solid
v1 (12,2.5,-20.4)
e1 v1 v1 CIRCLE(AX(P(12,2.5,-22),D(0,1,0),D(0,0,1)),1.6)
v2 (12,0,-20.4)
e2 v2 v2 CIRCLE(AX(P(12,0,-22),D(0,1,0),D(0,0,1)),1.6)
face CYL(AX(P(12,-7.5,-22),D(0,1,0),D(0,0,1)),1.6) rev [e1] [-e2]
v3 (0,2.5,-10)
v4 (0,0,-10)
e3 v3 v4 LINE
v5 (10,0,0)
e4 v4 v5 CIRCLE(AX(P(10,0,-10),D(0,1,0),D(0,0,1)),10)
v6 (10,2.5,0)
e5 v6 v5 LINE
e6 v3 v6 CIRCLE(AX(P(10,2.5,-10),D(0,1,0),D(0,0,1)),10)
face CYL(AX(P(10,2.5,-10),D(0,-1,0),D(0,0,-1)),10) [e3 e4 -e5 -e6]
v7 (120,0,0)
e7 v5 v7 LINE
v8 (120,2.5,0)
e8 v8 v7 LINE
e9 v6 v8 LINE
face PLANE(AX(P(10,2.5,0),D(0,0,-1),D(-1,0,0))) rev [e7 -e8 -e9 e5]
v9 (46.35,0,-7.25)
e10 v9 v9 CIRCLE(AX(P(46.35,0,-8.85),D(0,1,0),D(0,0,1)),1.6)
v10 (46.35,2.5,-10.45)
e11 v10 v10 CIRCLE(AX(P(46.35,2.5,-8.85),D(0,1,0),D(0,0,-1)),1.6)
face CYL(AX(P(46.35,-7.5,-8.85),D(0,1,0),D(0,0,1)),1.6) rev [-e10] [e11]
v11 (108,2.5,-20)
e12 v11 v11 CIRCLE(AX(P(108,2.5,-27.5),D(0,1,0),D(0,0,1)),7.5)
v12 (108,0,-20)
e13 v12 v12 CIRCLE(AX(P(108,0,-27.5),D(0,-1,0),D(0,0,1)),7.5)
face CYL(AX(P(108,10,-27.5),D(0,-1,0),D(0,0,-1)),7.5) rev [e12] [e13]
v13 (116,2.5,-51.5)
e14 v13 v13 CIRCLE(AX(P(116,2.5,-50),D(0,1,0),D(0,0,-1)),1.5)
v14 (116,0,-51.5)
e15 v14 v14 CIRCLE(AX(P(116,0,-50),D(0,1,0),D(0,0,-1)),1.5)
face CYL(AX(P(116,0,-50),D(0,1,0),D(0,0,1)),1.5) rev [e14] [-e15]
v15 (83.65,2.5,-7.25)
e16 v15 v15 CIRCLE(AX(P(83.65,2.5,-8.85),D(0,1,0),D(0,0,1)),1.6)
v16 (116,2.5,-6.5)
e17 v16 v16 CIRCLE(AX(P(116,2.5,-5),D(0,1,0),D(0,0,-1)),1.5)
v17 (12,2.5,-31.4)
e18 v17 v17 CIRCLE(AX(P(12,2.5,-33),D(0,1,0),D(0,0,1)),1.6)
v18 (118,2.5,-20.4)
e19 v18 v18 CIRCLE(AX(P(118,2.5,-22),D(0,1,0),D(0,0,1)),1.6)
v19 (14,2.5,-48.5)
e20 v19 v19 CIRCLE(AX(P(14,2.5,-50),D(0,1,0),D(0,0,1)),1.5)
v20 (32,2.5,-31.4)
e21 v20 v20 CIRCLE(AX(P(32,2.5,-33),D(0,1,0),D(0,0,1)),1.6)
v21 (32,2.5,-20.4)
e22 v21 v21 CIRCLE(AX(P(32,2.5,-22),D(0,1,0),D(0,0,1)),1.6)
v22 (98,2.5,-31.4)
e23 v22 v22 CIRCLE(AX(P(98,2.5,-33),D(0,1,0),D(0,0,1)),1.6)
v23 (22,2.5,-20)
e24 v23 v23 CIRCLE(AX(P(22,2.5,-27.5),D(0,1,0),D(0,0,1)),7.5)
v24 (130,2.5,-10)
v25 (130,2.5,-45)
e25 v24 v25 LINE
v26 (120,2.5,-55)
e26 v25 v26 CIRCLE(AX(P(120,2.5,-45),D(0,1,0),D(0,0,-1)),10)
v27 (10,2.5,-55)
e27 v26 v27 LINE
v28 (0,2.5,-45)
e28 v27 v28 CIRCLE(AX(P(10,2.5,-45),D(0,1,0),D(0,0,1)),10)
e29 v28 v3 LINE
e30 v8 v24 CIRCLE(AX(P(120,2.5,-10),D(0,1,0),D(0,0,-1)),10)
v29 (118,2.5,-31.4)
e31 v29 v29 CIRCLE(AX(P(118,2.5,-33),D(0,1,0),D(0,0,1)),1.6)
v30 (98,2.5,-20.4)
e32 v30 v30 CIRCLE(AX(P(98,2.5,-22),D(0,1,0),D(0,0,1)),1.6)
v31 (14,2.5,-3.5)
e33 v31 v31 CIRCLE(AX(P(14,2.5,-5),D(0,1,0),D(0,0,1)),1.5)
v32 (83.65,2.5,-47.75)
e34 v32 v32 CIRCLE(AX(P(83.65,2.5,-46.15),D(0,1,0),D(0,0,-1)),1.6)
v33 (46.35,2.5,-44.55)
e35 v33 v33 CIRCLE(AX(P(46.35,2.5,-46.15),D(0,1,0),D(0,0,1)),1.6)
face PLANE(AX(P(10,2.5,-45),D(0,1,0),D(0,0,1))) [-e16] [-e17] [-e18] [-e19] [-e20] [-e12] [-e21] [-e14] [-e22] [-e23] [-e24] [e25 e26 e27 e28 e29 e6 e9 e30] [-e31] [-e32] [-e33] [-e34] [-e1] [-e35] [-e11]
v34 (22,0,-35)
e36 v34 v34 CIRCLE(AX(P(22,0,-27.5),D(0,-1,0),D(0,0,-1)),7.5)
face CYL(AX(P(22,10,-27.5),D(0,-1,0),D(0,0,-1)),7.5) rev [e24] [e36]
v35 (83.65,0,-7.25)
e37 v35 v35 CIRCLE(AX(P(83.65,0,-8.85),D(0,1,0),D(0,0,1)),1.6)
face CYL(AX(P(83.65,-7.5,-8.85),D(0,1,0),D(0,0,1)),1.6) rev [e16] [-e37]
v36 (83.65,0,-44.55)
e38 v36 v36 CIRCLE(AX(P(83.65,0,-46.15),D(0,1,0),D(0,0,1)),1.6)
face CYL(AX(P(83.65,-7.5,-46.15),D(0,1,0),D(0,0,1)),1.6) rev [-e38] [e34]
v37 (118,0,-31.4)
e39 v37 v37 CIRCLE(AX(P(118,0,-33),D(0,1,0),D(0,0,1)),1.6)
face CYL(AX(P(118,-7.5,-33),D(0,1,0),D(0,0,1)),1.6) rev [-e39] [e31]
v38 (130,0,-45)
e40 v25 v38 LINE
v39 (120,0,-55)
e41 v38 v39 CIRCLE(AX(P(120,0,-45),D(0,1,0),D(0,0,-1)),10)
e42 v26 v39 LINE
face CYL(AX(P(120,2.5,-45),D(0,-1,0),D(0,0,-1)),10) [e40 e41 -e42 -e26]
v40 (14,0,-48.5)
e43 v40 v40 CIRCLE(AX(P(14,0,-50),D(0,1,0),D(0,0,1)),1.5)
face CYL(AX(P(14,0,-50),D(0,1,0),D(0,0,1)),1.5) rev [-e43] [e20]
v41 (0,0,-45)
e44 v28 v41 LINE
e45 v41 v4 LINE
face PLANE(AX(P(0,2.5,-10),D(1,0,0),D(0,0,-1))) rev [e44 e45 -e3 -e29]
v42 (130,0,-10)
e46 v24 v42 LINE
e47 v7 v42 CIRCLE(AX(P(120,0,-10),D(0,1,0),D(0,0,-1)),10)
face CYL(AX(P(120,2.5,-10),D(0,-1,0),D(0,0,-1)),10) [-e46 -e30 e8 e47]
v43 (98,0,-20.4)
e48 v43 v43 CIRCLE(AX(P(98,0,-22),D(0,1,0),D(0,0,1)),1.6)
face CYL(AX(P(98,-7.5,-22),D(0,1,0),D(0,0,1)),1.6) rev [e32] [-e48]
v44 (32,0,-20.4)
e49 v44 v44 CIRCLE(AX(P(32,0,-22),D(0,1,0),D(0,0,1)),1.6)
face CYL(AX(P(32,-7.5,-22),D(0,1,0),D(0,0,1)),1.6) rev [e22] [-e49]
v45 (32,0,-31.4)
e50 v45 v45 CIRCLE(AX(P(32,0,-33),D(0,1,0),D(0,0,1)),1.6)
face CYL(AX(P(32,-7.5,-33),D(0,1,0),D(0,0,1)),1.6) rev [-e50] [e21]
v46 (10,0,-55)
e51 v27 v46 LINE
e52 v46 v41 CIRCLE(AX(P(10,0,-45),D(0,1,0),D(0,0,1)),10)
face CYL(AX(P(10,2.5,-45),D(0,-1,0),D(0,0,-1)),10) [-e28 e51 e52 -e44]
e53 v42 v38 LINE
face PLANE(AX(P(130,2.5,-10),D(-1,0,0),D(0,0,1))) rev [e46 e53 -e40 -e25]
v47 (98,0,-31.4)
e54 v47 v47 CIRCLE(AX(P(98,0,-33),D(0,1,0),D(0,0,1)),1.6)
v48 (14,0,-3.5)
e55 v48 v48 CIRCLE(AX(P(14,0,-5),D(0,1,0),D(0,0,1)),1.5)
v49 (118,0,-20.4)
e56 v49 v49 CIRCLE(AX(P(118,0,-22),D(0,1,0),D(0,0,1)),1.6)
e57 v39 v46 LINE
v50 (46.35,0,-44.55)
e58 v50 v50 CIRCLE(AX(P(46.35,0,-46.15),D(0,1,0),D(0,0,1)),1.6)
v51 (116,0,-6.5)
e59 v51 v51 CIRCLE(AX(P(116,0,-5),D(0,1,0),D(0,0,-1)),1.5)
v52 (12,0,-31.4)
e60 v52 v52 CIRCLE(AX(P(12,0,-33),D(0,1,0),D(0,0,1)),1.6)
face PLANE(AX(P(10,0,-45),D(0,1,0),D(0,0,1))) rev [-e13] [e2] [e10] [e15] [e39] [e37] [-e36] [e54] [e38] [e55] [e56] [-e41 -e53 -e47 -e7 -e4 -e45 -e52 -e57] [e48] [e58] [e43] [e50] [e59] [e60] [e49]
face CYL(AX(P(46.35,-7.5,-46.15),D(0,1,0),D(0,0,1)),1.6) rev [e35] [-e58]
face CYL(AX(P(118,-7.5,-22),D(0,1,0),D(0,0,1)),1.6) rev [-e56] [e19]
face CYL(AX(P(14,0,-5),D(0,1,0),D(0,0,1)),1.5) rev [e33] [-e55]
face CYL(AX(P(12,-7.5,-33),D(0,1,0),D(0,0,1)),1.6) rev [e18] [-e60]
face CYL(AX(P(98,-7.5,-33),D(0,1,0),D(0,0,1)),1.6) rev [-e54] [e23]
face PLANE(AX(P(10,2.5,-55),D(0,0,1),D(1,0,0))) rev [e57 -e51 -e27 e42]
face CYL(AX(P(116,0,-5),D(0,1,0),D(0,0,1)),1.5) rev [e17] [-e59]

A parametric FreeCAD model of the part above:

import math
import FreeCAD as App
import Part
import Sketcher
from FreeCAD import Vector

doc = App.newDocument("Part")
body = doc.addObject("PartDesign::Body", "Body")

# Sketch on XZ plane
sketch1 = body.newObject("Sketcher::SketchObject", "Sketch")
sketch1.AttachmentSupport = (doc.getObject("XZ_Plane"), [""])
sketch1.MapMode = "FlatFace"
sketch1.addGeometry([
    Part.LineSegment(Vector(10, 0, 0), Vector(120, 0, 0)),  # 0
    Part.ArcOfCircle(Part.Circle(Vector(120, -10, 0), Vector(0, 0, 1), 10), math.radians(0), math.radians(90)),  # 1
    Part.LineSegment(Vector(130, -10, 0), Vector(130, -45, 0)),  # 2
    Part.ArcOfCircle(Part.Circle(Vector(120, -45, 0), Vector(0, 0, 1), 10), math.radians(-90), math.radians(0)),  # 3
    Part.LineSegment(Vector(120, -55, 0), Vector(10, -55, 0)),  # 4
    Part.ArcOfCircle(Part.Circle(Vector(10, -45, 0), Vector(0, 0, 1), 10), math.radians(180), math.radians(270)),  # 5
    Part.LineSegment(Vector(0, -45, 0), Vector(0, -10, 0)),  # 6
    Part.ArcOfCircle(Part.Circle(Vector(10, -10, 0), Vector(0, 0, 1), 10), math.radians(90), math.radians(180)),  # 7
], False)
sketch1.addConstraint([
    Sketcher.Constraint("Tangent", 0, 2, 1, 2),
    Sketcher.Constraint("Tangent", 1, 1, 2, 1),
    Sketcher.Constraint("Tangent", 2, 2, 3, 2),
    Sketcher.Constraint("Tangent", 3, 1, 4, 1),
    Sketcher.Constraint("Tangent", 4, 2, 5, 2),
    Sketcher.Constraint("Tangent", 5, 1, 6, 1),
    Sketcher.Constraint("Tangent", 6, 2, 7, 2),
    Sketcher.Constraint("Tangent", 7, 1, 0, 1),
    Sketcher.Constraint("Horizontal", 0),
    Sketcher.Constraint("Vertical", 2),
    Sketcher.Constraint("Horizontal", 4),
    Sketcher.Constraint("Vertical", 6),
    Sketcher.Constraint("Equal", 1, 3),
    Sketcher.Constraint("Equal", 3, 5),
    Sketcher.Constraint("Equal", 5, 7),
    Sketcher.Constraint("PointOnObject", 0, 2, -1),
    Sketcher.Constraint("PointOnObject", 5, 1, -2),
    Sketcher.Constraint("Radius", 1, 10.0),
    Sketcher.Constraint("DistanceX", 0, 1, 0, 2, 110.0),
    Sketcher.Constraint("DistanceY", 2, 2, 2, 1, 35.0),
])
pad1 = body.newObject("PartDesign::Pad", "Pad")
pad1.Profile = sketch1
pad1.Length = 2.5
pad1.Reversed = True

# Sketch on XZ plane
sketch2 = body.newObject("Sketcher::SketchObject", "Sketch001")
sketch2.AttachmentSupport = (doc.getObject("XZ_Plane"), [""])
sketch2.MapMode = "FlatFace"
sketch2.AttachmentOffset = App.Placement(Vector(0, 0, -2.5), App.Rotation())
sketch2.addGeometry([
    Part.Circle(Vector(14, -5, 0), Vector(0, 0, 1), 1.5),
    Part.Circle(Vector(14, -50, 0), Vector(0, 0, 1), 1.5),
    Part.Circle(Vector(116, -5, 0), Vector(0, 0, 1), 1.5),
    Part.Circle(Vector(116, -50, 0), Vector(0, 0, 1), 1.5),
], False)
sketch2.addConstraint([
    Sketcher.Constraint("Equal", 0, 1),
    Sketcher.Constraint("Equal", 1, 2),
    Sketcher.Constraint("Equal", 2, 3),
    Sketcher.Constraint("Horizontal", 0, 3, 2, 3),
    Sketcher.Constraint("Horizontal", 1, 3, 3, 3),
    Sketcher.Constraint("Vertical", 0, 3, 1, 3),
    Sketcher.Constraint("Vertical", 2, 3, 3, 3),
    Sketcher.Constraint("Diameter", 0, 3.0),
    Sketcher.Constraint("DistanceX", -1, 1, 0, 3, 14.0),
    Sketcher.Constraint("DistanceY", 0, 3, -1, 1, 5.0),
    Sketcher.Constraint("DistanceY", 1, 3, -1, 1, 50.0),
    Sketcher.Constraint("DistanceX", -1, 1, 2, 3, 116.0),
])
pocket1 = body.newObject("PartDesign::Pocket", "Pocket")
pocket1.Profile = sketch2
pocket1.Type = "ThroughAll"
pocket1.Reversed = True

# Sketch on XZ plane
sketch3 = body.newObject("Sketcher::SketchObject", "Sketch002")
sketch3.AttachmentSupport = (doc.getObject("XZ_Plane"), [""])
sketch3.MapMode = "FlatFace"
sketch3.AttachmentOffset = App.Placement(Vector(0, 0, -2.5), App.Rotation())
sketch3.addGeometry(Part.Circle(Vector(12, -33, 0), Vector(0, 0, 1), 1.6), False)
sketch3.addConstraint([
    Sketcher.Constraint("Diameter", 0, 3.2),
    Sketcher.Constraint("DistanceX", -1, 1, 0, 3, 12.0),
    Sketcher.Constraint("DistanceY", 0, 3, -1, 1, 33.0),
])
pocket2 = body.newObject("PartDesign::Pocket", "Pocket001")
pocket2.Profile = sketch3
pocket2.Length = 10
pocket2.Reversed = True

# Sketch on XZ plane
sketch4 = body.newObject("Sketcher::SketchObject", "Sketch003")
sketch4.AttachmentSupport = (doc.getObject("XZ_Plane"), [""])
sketch4.MapMode = "FlatFace"
sketch4.AttachmentOffset = App.Placement(Vector(0, 0, -2.5), App.Rotation())
sketch4.addGeometry(Part.Circle(Vector(12, -22, 0), Vector(0, 0, 1), 1.6), False)
sketch4.addConstraint([
    Sketcher.Constraint("Diameter", 0, 3.2),
    Sketcher.Constraint("DistanceX", -1, 1, 0, 3, 12.0),
    Sketcher.Constraint("DistanceY", 0, 3, -1, 1, 22.0),
])
pocket3 = body.newObject("PartDesign::Pocket", "Pocket002")
pocket3.Profile = sketch4
pocket3.Length = 10
pocket3.Reversed = True

# Sketch on XZ plane
sketch5 = body.newObject("Sketcher::SketchObject", "Sketch004")
sketch5.AttachmentSupport = (doc.getObject("XZ_Plane"), [""])
sketch5.MapMode = "FlatFace"
sketch5.AttachmentOffset = App.Placement(Vector(0, 0, -2.5), App.Rotation())
sketch5.addGeometry([
    Part.Circle(Vector(32, -33, 0), Vector(0, 0, 1), 1.6),
    Part.Circle(Vector(32, -22, 0), Vector(0, 0, 1), 1.6),
], False)
sketch5.addConstraint([
    Sketcher.Constraint("Equal", 0, 1),
    Sketcher.Constraint("Vertical", 0, 3, 1, 3),
    Sketcher.Constraint("Diameter", 0, 3.2),
    Sketcher.Constraint("DistanceX", -1, 1, 0, 3, 32.0),
    Sketcher.Constraint("DistanceY", 0, 3, -1, 1, 33.0),
    Sketcher.Constraint("DistanceY", 1, 3, -1, 1, 22.0),
])
pocket4 = body.newObject("PartDesign::Pocket", "Pocket003")
pocket4.Profile = sketch5
pocket4.Length = 10
pocket4.Reversed = True

# Sketch on XZ plane
sketch6 = body.newObject("Sketcher::SketchObject", "Sketch005")
sketch6.AttachmentSupport = (doc.getObject("XZ_Plane"), [""])
sketch6.MapMode = "FlatFace"
sketch6.AttachmentOffset = App.Placement(Vector(0, 0, -2.5), App.Rotation())
sketch6.addGeometry([
    Part.Circle(Vector(98, -33, 0), Vector(0, 0, 1), 1.6),
    Part.Circle(Vector(98, -22, 0), Vector(0, 0, 1), 1.6),
    Part.Circle(Vector(118, -33, 0), Vector(0, 0, 1), 1.6),
    Part.Circle(Vector(118, -22, 0), Vector(0, 0, 1), 1.6),
], False)
sketch6.addConstraint([
    Sketcher.Constraint("Equal", 0, 1),
    Sketcher.Constraint("Equal", 1, 2),
    Sketcher.Constraint("Equal", 2, 3),
    Sketcher.Constraint("Horizontal", 0, 3, 2, 3),
    Sketcher.Constraint("Horizontal", 1, 3, 3, 3),
    Sketcher.Constraint("Vertical", 0, 3, 1, 3),
    Sketcher.Constraint("Vertical", 2, 3, 3, 3),
    Sketcher.Constraint("Diameter", 0, 3.2),
    Sketcher.Constraint("DistanceX", -1, 1, 0, 3, 98.0),
    Sketcher.Constraint("DistanceY", 0, 3, -1, 1, 33.0),
    Sketcher.Constraint("DistanceY", 1, 3, -1, 1, 22.0),
    Sketcher.Constraint("DistanceX", -1, 1, 2, 3, 118.0),
])
pocket5 = body.newObject("PartDesign::Pocket", "Pocket004")
pocket5.Profile = sketch6
pocket5.Length = 10
pocket5.Reversed = True

# Sketch on XZ plane
sketch7 = body.newObject("Sketcher::SketchObject", "Sketch006")
sketch7.AttachmentSupport = (doc.getObject("XZ_Plane"), [""])
sketch7.MapMode = "FlatFace"
sketch7.AttachmentOffset = App.Placement(Vector(0, 0, -2.5), App.Rotation())
sketch7.addGeometry([
    Part.Circle(Vector(46.4, -46.1, 0), Vector(0, 0, 1), 1.6),
    Part.Circle(Vector(83.7, -46.1, 0), Vector(0, 0, 1), 1.6),
    Part.Circle(Vector(83.7, -8.8, 0), Vector(0, 0, 1), 1.6),
    Part.Circle(Vector(46.4, -8.8, 0), Vector(0, 0, 1), 1.6),
], False)
sketch7.addConstraint([
    Sketcher.Constraint("Equal", 0, 1),
    Sketcher.Constraint("Equal", 1, 2),
    Sketcher.Constraint("Equal", 2, 3),
    Sketcher.Constraint("Horizontal", 0, 3, 1, 3),
    Sketcher.Constraint("Horizontal", 2, 3, 3, 3),
    Sketcher.Constraint("Vertical", 1, 3, 2, 3),
    Sketcher.Constraint("Vertical", 0, 3, 3, 3),
    Sketcher.Constraint("Diameter", 0, 3.2),
    Sketcher.Constraint("DistanceX", 0, 3, 1, 3, 37.3),
    Sketcher.Constraint("DistanceY", 1, 3, 2, 3, 37.3),
    Sketcher.Constraint("DistanceX", -1, 1, 0, 3, 46.35),
    Sketcher.Constraint("DistanceY", 0, 3, -1, 1, 46.15),
])
pocket6 = body.newObject("PartDesign::Pocket", "Pocket005")
pocket6.Profile = sketch7
pocket6.Length = 10
pocket6.Reversed = True

# Sketch on XZ plane
sketch8 = body.newObject("Sketcher::SketchObject", "Sketch007")
sketch8.AttachmentSupport = (doc.getObject("XZ_Plane"), [""])
sketch8.MapMode = "FlatFace"
sketch8.addGeometry([
    Part.Circle(Vector(22, -28, 0), Vector(0, 0, 1), 8),
    Part.Circle(Vector(108, -28, 0), Vector(0, 0, 1), 8),
], False)
sketch8.addConstraint([
    Sketcher.Constraint("Equal", 0, 1),
    Sketcher.Constraint("Horizontal", 0, 3, 1, 3),
    Sketcher.Constraint("Diameter", 0, 15.0),
    Sketcher.Constraint("DistanceX", -1, 1, 0, 3, 22.0),
    Sketcher.Constraint("DistanceX", -1, 1, 1, 3, 108.0),
    Sketcher.Constraint("DistanceY", 0, 3, -1, 1, 27.5),
])
pocket7 = body.newObject("PartDesign::Pocket", "Pocket006")
pocket7.Profile = sketch8
pocket7.Length = 10

doc.recompute()
